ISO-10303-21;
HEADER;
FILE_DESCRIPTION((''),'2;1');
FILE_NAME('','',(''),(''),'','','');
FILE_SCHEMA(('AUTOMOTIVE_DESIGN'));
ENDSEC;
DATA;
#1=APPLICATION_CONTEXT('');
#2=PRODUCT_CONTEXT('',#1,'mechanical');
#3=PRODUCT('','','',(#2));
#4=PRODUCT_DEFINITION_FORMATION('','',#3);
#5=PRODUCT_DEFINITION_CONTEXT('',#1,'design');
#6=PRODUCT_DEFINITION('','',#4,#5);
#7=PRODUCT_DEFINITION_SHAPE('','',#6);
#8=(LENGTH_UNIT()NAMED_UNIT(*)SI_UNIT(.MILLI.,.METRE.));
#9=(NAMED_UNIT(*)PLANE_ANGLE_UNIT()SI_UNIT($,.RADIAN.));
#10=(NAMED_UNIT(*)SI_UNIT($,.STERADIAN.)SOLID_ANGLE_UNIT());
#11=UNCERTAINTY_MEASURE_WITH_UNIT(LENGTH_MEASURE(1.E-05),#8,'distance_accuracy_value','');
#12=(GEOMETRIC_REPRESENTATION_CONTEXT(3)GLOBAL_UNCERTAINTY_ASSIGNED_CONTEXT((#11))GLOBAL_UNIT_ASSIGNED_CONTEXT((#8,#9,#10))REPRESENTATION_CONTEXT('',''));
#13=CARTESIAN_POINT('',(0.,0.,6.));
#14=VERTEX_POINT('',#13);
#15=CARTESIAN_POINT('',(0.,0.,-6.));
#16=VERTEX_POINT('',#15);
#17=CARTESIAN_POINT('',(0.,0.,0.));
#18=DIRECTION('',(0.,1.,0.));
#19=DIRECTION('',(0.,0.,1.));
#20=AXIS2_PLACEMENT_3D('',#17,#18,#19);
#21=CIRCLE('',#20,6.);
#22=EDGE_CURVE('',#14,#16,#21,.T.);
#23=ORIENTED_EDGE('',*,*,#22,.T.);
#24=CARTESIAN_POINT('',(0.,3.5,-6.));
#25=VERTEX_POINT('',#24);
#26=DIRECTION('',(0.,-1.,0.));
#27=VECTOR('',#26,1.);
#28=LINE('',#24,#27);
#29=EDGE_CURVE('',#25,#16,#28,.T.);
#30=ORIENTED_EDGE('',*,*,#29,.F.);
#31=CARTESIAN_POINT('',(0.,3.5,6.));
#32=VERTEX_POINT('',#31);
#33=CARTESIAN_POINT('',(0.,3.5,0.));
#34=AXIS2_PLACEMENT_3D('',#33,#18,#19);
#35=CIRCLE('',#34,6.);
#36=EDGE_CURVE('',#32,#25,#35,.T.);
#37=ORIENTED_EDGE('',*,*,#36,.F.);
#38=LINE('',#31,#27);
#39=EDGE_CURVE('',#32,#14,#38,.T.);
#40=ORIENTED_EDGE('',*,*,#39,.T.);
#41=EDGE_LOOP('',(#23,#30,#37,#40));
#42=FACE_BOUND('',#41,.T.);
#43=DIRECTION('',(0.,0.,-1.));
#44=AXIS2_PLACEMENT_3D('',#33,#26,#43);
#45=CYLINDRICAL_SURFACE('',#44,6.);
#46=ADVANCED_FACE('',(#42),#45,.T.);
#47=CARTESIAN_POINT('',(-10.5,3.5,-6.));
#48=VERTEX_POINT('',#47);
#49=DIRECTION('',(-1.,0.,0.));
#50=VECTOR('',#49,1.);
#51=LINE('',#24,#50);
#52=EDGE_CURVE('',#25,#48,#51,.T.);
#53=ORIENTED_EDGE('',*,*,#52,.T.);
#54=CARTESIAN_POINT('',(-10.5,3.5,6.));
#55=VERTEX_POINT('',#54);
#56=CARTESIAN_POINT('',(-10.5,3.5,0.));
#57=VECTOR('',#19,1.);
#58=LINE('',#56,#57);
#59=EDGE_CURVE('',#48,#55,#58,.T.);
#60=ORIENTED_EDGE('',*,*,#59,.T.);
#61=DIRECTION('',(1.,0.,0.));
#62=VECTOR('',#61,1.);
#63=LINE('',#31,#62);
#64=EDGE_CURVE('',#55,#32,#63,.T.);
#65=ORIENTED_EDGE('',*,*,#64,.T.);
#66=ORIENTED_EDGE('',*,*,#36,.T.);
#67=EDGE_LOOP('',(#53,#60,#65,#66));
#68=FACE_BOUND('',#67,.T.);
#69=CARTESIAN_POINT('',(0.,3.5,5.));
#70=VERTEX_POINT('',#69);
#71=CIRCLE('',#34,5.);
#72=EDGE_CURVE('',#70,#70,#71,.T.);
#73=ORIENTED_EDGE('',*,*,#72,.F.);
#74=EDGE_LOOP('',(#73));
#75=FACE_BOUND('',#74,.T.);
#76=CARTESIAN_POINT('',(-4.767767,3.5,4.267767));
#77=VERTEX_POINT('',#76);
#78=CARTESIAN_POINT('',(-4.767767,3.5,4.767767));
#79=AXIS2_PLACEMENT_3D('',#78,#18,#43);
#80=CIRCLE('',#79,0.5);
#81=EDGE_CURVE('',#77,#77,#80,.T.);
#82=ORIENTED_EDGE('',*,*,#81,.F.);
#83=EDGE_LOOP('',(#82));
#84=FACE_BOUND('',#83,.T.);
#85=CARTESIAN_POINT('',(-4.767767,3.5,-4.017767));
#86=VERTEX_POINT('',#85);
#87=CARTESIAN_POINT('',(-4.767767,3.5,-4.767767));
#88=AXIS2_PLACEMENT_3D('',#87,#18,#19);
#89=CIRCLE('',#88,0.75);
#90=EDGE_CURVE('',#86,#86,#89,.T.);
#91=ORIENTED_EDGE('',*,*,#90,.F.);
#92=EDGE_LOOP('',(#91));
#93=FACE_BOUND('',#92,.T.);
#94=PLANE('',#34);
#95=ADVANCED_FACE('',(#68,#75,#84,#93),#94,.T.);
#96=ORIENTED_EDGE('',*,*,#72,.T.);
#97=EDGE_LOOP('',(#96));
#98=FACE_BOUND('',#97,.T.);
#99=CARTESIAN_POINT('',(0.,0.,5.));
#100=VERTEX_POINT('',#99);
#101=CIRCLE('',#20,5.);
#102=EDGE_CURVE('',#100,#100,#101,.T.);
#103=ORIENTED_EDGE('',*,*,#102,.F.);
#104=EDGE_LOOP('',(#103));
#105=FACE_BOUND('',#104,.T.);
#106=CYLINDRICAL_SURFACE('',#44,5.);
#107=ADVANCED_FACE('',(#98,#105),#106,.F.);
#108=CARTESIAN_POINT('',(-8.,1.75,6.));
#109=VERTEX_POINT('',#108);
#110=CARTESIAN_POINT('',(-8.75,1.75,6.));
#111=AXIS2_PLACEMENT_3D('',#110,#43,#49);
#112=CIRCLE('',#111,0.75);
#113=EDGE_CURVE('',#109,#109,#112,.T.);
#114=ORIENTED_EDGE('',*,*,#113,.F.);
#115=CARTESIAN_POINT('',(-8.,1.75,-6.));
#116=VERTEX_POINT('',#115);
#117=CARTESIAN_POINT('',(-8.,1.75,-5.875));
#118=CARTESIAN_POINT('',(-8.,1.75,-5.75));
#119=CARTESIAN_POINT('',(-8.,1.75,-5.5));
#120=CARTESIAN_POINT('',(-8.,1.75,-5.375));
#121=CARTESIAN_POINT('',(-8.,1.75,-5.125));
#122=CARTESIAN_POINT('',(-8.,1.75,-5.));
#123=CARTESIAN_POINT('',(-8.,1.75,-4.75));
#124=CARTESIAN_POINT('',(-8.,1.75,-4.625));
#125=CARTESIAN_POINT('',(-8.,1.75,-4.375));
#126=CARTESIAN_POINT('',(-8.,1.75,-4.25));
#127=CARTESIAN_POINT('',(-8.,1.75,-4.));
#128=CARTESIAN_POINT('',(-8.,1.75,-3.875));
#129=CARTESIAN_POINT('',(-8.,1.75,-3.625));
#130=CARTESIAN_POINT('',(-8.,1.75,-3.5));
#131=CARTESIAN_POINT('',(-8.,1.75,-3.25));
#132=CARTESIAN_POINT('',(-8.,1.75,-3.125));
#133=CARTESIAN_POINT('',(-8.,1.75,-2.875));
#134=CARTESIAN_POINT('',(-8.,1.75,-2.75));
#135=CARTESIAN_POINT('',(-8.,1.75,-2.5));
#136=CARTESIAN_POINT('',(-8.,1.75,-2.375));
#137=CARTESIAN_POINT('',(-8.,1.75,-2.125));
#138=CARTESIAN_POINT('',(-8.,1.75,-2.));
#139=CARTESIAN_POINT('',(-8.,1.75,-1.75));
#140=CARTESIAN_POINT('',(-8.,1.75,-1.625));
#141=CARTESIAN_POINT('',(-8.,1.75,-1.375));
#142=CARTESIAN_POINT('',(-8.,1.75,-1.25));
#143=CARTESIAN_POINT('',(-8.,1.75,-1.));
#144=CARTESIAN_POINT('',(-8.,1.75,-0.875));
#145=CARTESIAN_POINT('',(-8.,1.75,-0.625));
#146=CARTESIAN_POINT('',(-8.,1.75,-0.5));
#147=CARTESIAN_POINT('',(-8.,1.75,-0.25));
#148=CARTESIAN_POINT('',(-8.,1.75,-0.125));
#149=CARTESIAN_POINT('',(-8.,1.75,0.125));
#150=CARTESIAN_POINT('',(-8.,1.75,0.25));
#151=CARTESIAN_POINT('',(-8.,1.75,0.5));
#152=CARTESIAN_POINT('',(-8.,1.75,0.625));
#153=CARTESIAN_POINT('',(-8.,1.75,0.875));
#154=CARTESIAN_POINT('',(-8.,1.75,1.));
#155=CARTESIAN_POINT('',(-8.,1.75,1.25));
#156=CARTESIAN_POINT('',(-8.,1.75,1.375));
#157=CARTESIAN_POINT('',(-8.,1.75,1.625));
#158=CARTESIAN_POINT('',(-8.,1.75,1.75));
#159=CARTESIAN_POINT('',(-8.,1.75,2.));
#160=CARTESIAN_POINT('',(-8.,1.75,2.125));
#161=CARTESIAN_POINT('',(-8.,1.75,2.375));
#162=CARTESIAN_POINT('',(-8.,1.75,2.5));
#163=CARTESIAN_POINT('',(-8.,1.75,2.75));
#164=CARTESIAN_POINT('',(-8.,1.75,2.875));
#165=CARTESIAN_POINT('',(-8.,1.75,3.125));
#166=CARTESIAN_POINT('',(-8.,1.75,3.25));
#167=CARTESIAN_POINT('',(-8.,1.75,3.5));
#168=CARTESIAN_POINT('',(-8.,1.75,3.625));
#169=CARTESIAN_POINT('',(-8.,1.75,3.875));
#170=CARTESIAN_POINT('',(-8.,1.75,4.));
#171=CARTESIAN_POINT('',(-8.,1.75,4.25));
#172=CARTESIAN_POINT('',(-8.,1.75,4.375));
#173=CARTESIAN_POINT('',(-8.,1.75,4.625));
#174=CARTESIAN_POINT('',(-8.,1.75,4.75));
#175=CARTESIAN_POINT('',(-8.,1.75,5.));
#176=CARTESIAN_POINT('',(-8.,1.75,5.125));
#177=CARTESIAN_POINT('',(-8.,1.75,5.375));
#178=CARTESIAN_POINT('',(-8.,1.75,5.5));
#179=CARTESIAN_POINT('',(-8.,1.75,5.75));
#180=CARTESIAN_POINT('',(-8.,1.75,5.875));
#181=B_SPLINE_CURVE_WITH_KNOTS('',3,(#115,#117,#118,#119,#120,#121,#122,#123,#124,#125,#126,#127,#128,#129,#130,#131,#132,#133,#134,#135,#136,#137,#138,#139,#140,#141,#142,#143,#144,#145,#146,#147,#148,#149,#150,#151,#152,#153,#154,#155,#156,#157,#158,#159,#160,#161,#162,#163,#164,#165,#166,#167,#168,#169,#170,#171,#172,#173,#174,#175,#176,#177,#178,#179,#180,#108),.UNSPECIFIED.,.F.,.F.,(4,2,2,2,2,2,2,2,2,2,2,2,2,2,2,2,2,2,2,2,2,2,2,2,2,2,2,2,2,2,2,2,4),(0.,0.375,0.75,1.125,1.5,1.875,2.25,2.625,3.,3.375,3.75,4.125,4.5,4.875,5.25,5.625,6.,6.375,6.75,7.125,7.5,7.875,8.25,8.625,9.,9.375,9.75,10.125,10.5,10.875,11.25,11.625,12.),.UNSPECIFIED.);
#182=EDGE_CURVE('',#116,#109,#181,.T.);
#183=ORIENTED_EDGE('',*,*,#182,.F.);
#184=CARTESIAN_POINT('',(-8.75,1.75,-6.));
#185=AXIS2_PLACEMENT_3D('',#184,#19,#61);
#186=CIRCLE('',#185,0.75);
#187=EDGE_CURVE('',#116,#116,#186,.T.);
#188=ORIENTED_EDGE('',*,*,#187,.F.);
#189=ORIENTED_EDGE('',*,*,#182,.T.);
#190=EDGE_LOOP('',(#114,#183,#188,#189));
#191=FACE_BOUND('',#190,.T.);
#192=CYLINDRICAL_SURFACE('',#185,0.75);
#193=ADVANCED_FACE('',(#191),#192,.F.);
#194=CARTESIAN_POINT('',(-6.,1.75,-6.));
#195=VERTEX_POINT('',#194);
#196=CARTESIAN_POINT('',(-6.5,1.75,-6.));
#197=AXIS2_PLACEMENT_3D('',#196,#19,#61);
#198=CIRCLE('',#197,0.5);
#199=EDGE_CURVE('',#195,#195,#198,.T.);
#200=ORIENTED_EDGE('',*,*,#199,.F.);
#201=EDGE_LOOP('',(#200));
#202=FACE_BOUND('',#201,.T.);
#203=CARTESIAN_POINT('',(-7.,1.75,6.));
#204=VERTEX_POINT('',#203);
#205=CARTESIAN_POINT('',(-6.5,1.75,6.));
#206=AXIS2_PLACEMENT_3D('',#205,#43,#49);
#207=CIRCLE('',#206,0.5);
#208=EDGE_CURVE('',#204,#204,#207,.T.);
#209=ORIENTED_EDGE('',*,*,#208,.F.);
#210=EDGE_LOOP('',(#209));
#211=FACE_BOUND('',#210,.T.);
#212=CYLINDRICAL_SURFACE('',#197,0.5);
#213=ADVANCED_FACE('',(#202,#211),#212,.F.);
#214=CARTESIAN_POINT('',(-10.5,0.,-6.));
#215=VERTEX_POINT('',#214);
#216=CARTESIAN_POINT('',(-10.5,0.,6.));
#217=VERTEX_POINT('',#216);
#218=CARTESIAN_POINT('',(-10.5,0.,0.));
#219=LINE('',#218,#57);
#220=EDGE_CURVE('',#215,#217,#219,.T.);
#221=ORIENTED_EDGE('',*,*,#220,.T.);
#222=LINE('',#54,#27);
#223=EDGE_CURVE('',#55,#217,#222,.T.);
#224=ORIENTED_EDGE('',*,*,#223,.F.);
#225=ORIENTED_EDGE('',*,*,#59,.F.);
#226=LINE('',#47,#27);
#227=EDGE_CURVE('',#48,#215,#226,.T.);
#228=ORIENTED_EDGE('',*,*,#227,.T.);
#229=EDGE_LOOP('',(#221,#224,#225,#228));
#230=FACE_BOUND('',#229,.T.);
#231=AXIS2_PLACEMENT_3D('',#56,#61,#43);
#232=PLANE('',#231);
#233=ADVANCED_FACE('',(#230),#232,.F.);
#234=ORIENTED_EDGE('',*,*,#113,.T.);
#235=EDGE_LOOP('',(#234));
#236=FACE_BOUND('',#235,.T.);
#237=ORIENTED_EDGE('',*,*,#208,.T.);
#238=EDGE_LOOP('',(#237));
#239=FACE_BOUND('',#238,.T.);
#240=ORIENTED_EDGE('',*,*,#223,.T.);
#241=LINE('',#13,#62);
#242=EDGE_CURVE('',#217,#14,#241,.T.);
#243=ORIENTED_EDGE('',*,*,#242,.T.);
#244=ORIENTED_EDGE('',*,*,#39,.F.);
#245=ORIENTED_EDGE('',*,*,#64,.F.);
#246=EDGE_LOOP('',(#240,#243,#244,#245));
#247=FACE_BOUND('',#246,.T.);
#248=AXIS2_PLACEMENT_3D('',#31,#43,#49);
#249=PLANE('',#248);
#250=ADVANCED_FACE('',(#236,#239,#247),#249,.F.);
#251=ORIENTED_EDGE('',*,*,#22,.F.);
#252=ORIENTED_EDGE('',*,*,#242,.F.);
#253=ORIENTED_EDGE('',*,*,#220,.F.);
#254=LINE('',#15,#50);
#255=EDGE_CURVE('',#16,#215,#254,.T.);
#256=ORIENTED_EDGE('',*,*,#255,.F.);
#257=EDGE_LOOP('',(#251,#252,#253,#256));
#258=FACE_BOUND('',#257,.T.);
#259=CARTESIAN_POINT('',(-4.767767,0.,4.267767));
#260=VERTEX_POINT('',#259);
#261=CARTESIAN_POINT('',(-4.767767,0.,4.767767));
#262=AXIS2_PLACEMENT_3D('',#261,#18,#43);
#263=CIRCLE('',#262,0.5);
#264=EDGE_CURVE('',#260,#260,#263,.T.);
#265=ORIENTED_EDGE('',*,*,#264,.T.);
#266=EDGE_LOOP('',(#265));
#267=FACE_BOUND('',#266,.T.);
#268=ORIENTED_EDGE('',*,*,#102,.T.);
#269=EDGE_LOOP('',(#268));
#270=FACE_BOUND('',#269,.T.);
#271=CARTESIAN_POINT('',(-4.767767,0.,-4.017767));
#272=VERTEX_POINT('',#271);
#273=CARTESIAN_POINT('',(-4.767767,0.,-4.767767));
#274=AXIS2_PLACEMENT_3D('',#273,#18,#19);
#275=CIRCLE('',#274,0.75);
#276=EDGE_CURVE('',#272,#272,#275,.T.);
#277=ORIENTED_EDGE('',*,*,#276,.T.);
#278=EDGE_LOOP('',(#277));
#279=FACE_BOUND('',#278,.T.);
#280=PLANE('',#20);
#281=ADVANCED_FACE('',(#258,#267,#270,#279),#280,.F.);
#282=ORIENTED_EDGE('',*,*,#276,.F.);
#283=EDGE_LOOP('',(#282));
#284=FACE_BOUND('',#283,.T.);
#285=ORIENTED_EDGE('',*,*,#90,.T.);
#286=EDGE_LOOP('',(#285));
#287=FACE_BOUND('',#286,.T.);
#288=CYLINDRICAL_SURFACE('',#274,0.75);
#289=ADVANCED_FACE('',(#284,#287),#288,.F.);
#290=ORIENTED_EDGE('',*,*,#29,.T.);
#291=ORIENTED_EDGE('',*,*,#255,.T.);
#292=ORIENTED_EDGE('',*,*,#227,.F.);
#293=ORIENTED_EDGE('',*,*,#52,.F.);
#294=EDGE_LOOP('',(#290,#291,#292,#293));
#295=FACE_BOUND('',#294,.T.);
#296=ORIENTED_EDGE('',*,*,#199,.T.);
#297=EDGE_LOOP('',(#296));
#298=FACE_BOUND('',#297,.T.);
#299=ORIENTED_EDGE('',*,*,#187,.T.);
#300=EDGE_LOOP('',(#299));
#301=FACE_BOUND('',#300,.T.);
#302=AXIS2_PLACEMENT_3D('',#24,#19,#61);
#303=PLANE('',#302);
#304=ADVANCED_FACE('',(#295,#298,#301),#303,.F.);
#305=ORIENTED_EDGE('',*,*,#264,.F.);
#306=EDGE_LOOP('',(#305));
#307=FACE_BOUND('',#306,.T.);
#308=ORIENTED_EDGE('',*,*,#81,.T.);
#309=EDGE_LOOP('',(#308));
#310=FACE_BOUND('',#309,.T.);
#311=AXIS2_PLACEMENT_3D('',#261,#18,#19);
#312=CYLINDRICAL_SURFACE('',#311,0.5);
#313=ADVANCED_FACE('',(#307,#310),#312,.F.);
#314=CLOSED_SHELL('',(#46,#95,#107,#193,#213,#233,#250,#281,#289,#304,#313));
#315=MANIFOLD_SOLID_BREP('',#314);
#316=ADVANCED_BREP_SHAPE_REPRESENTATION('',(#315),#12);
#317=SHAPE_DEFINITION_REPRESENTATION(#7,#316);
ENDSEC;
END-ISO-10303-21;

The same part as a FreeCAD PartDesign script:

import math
import FreeCAD as App
import Part
import Sketcher

V = App.Vector
Q = App.Units.Quantity

doc = App.newDocument("Part")
body = doc.addObject("PartDesign::Body", "Body")

# Sketch on XZ plane
sketch1 = body.newObject("Sketcher::SketchObject", "Sketch")
sketch1.AttachmentSupport = (doc.getObject("XZ_Plane"), [""])
sketch1.MapMode = "FlatFace"
sketch1.addGeometry([
    Part.LineSegment(V(-10, -6, 0), V(-10, 6, 0)),  # 0
    Part.LineSegment(V(-10, 6, 0), V(0, 6, 0)),  # 1
    Part.ArcOfCircle(Part.Circle(V(0, 0, 0), V(0, 0, 1), 6), math.radians(-90), math.radians(90)),  # 2
    Part.LineSegment(V(0, -6, 0), V(-10, -6, 0)),  # 3
    Part.Circle(V(0, 0, 0), V(0, 0, 1), 5),  # 4
], False)
sketch1.addConstraint([
    Sketcher.Constraint("Coincident", 0, 2, 1, 1),
    Sketcher.Constraint("Tangent", 1, 2, 2, 2),
    Sketcher.Constraint("Tangent", 2, 1, 3, 1),
    Sketcher.Constraint("Coincident", 3, 2, 0, 1),
    Sketcher.Constraint("Vertical", 0),
    Sketcher.Constraint("Horizontal", 1),
    Sketcher.Constraint("Horizontal", 3),
    Sketcher.Constraint("Coincident", 2, 3, -1, 1),
    Sketcher.Constraint("Coincident", 4, 3, -1, 1),
    Sketcher.Constraint("Diameter", 4, Q("10 mm")),
    Sketcher.Constraint("Radius", 2, Q("6 mm")),
    Sketcher.Constraint("DistanceX", 1, 1, 1, 2, Q("10.5 mm")),
])
pad1 = body.newObject("PartDesign::Pad", "Pad")
pad1.Profile = sketch1
pad1.Length = 3.5
pad1.Reversed = True

# Sketch on XY plane
sketch2 = body.newObject("Sketcher::SketchObject", "Sketch001")
sketch2.AttachmentSupport = (doc.getObject("XY_Plane"), [""])
sketch2.MapMode = "FlatFace"
sketch2.AttachmentOffset = App.Placement(V(0, 0, 6), App.Rotation())
sketch2.addGeometry([
    Part.Circle(V(-8.8, 1.8, 0), V(0, 0, 1), 0.8),
    Part.Circle(V(-6.5, 1.8, 0), V(0, 0, 1), 0.5),
], False)
sketch2.addConstraint([
    Sketcher.Constraint("Horizontal", 0, 3, 1, 3),
    Sketcher.Constraint("Diameter", 1, Q("1 mm")),
    Sketcher.Constraint("Diameter", 0, Q("1.5 mm")),
    Sketcher.Constraint("DistanceX", 1, 3, -1, 1, Q("6.5 mm")),
    Sketcher.Constraint("DistanceX", 0, 3, -1, 1, Q("8.75 mm")),
    Sketcher.Constraint("DistanceY", -1, 1, 0, 3, Q("1.75 mm")),
])
pocket1 = body.newObject("PartDesign::Pocket", "Pocket")
pocket1.Profile = sketch2
pocket1.Type = "ThroughAll"
pocket1.Midplane = True

# Sketch on XZ plane
sketch3 = body.newObject("Sketcher::SketchObject", "Sketch002")
sketch3.AttachmentSupport = (doc.getObject("XZ_Plane"), [""])
sketch3.MapMode = "FlatFace"
sketch3.AttachmentOffset = App.Placement(V(0, 0, -3.5), App.Rotation())
sketch3.addGeometry([
    Part.Circle(V(-4.8, -4.8, 0), V(0, 0, 1), 0.8),
    Part.Circle(V(-4.8, 4.8, 0), V(0, 0, 1), 0.5),
], False)
sketch3.addConstraint([
    Sketcher.Constraint("Symmetric", 0, 3, 1, 3, -1),
    Sketcher.Constraint("Diameter", 1, Q("1 mm")),
    Sketcher.Constraint("Diameter", 0, Q("1.5 mm")),
    Sketcher.Constraint("DistanceX", 0, 3, -1, 1, Q("4.767767 mm")),
    Sketcher.Constraint("DistanceY", 0, 3, -1, 1, Q("4.767767 mm")),
])
pocket2 = body.newObject("PartDesign::Pocket", "Pocket001")
pocket2.Profile = sketch3
pocket2.Length = 3.5
pocket2.Reversed = True

doc.recompute()
